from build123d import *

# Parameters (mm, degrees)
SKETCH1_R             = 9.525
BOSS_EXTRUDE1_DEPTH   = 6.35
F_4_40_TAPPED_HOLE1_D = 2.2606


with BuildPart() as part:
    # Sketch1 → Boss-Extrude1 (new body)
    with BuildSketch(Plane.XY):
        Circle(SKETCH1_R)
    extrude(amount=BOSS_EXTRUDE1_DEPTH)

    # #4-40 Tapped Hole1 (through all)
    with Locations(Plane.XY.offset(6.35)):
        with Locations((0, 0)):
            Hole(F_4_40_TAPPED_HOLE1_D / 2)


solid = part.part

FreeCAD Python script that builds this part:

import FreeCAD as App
import Part
import Sketcher
from FreeCAD import Vector
Q = App.Units.Quantity

doc = App.newDocument("Part")
body = doc.addObject("PartDesign::Body", "Body")

# Sketch on XY plane
sketch1 = body.newObject("Sketcher::SketchObject", "Sketch")
sketch1.AttachmentSupport = (doc.getObject("XY_Plane"), [""])
sketch1.MapMode = "FlatFace"
sketch1.addGeometry(Part.Circle(Vector(0, 0, 0), Vector(0, 0, 1), 10), False)
sketch1.addConstraint(Sketcher.Constraint("Coincident", 0, 3, -1, 1))
sketch1.addConstraint(Sketcher.Constraint("Diameter", 0, Q("0.75 in")))
pad1 = body.newObject("PartDesign::Pad", "Pad")
pad1.Profile = sketch1
pad1.Length = Q("0.25 in")

# Sketch on XY plane
sketch2 = body.newObject("Sketcher::SketchObject", "Sketch001")
sketch2.AttachmentSupport = (doc.getObject("XY_Plane"), [""])
sketch2.MapMode = "FlatFace"
sketch2.AttachmentOffset = App.Placement(Vector(0, 0, 0.25 * 25.4), App.Rotation())
sketch2.addGeometry(Part.Circle(Vector(0, 0, 0), Vector(0, 0, 1), 1.1), False)
sketch2.addConstraint(Sketcher.Constraint("Coincident", 0, 3, -1, 1))
sketch2.addConstraint(Sketcher.Constraint("Diameter", 0, Q("0.089 in")))
doc.recompute()
hole = body.newObject("PartDesign::Hole", "Hole")
hole.Profile = sketch2
hole.ThreadType = "None"
hole.Diameter = Q("0.089 in")
hole.DepthType = "ThroughAll"

doc.recompute()
